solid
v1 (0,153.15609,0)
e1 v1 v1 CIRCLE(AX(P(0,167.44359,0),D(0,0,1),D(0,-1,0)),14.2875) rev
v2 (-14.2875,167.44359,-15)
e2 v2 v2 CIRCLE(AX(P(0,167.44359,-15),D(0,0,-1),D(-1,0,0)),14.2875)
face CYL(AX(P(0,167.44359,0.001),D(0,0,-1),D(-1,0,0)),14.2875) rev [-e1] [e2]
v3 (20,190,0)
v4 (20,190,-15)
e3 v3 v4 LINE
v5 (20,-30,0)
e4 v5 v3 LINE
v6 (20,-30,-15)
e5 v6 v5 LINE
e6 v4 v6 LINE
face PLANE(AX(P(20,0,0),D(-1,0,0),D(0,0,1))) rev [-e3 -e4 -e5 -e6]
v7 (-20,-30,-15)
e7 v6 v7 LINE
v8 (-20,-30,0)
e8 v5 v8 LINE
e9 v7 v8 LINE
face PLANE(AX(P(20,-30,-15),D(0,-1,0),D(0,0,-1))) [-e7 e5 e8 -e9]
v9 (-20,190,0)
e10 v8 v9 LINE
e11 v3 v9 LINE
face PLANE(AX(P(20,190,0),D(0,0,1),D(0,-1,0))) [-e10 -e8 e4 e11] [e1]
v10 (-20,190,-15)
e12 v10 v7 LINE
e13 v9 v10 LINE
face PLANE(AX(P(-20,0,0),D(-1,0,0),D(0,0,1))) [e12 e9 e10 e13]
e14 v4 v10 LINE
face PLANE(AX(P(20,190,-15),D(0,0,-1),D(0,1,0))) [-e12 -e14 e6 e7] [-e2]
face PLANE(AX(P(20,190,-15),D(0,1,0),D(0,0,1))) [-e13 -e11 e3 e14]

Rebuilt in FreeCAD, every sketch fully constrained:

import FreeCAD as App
import Part
import Sketcher
from FreeCAD import Vector


def add_polygon(sketch, points):
    """Adds a closed chain of lines whose ends are joined by coincident constraints."""
    first, n = sketch.GeometryCount, len(points)
    for a, b in zip(points, points[1:] + points[:1]):
        sketch.addGeometry(Part.LineSegment(App.Vector(*a, 0), App.Vector(*b, 0)), False)
    for i in range(n):
        sketch.addConstraint(Sketcher.Constraint("Coincident", first + i, 2, first + (i + 1) % n, 1))

doc = App.newDocument("Part")
body = doc.addObject("PartDesign::Body", "Body")

sketch1 = body.newObject("Sketcher::SketchObject", "Sketch")
sketch1.AttachmentSupport = (doc.getObject("YZ_Plane"), [""])
sketch1.MapMode = "FlatFace"
add_polygon(sketch1, [(190, -15), (-30, -15), (-30, 0), (190, 0)])
sketch1.addConstraint(Sketcher.Constraint("Horizontal", 0))
sketch1.addConstraint(Sketcher.Constraint("Vertical", 1))
sketch1.addConstraint(Sketcher.Constraint("Horizontal", 2))
sketch1.addConstraint(Sketcher.Constraint("Vertical", 3))
sketch1.addConstraint(Sketcher.Constraint("PointOnObject", 1, 2, -1))
sketch1.addConstraint(Sketcher.Constraint("DistanceX", 0, 2, 0, 1, 220.0))
sketch1.addConstraint(Sketcher.Constraint("DistanceY", 1, 1, 1, 2, 15.0))
sketch1.addConstraint(Sketcher.Constraint("DistanceX", 0, 2, -1, 1, 30.0))
pad1 = body.newObject("PartDesign::Pad", "Pad")
pad1.Profile = sketch1
pad1.Type = "TwoLengths"
pad1.Length = 20
pad1.Length2 = 20
pad1.Reversed = True

sketch2 = body.newObject("Sketcher::SketchObject", "Sketch001")
sketch2.AttachmentSupport = (doc.getObject("XY_Plane"), [""])
sketch2.MapMode = "FlatFace"
sketch2.AttachmentOffset = App.Placement(Vector(0, 0, -15), App.Rotation())
sketch2.addGeometry(Part.Circle(Vector(0, 167.44359, 0), Vector(0, 0, 1), 14.2875), False)
sketch2.addConstraint(Sketcher.Constraint("PointOnObject", 0, 3, -2))
sketch2.addConstraint(Sketcher.Constraint("Diameter", 0, 28.575))
sketch2.addConstraint(Sketcher.Constraint("DistanceY", -1, 1, 0, 3, 167.44359))
pocket1 = body.newObject("PartDesign::Pocket", "Pocket")
pocket1.Profile = sketch2
pocket1.Type = "UpToFirst"
pocket1.Reversed = True

doc.recompute()
